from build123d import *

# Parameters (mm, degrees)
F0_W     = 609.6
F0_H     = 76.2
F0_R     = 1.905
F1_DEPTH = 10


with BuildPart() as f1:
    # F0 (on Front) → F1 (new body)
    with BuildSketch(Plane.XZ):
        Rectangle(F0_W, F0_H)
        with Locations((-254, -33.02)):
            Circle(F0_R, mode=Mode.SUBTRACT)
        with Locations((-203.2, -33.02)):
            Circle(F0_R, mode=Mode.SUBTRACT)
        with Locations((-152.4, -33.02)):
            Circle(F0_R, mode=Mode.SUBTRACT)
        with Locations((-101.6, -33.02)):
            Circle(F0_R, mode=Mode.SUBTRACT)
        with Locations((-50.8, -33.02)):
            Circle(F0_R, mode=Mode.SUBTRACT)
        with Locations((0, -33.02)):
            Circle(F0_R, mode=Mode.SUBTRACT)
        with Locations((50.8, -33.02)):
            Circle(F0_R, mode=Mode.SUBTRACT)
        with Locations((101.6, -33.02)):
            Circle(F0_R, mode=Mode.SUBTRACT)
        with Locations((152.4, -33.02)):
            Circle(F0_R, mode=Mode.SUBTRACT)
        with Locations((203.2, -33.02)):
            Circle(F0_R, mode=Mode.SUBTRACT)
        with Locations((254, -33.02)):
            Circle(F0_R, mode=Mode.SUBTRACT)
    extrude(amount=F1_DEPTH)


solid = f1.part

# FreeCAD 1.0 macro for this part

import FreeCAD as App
import Part
import Sketcher

V = App.Vector
Q = App.Units.Quantity

doc = App.newDocument("Part")
body = doc.addObject("PartDesign::Body", "Body")

# Sketch on XZ plane
sketch1 = doc.addObject("Sketcher::SketchObject", "Sketch")
body.addObject(sketch1)
sketch1.AttachmentSupport = (doc.XZ_Plane, [""])
sketch1.MapMode = "FlatFace"
sketch1.addGeometry([
    Part.LineSegment(V(-304.8, 38.1, 0), V(-304.8, -38.1, 0)),  # 0
    Part.LineSegment(V(-304.8, -38.1, 0), V(304.8, -38.1, 0)),  # 1
    Part.LineSegment(V(304.8, -38.1, 0), V(304.8, 38.1, 0)),  # 2
    Part.LineSegment(V(304.8, 38.1, 0), V(-304.8, 38.1, 0)),  # 3
    Part.Circle(V(-254, -33, 0), V(0, 0, 1), 1.9),  # 4
    Part.Circle(V(-203.2, -33, 0), V(0, 0, 1), 1.9),  # 5
    Part.Circle(V(-152.4, -33, 0), V(0, 0, 1), 1.9),  # 6
    Part.Circle(V(-101.6, -33, 0), V(0, 0, 1), 1.9),  # 7
    Part.Circle(V(-50.8, -33, 0), V(0, 0, 1), 1.9),  # 8
    Part.Circle(V(0, -33, 0), V(0, 0, 1), 1.9),  # 9
    Part.Circle(V(50.8, -33, 0), V(0, 0, 1), 1.9),  # 10
    Part.Circle(V(101.6, -33, 0), V(0, 0, 1), 1.9),  # 11
    Part.Circle(V(152.4, -33, 0), V(0, 0, 1), 1.9),  # 12
    Part.Circle(V(203.2, -33, 0), V(0, 0, 1), 1.9),  # 13
    Part.Circle(V(254, -33, 0), V(0, 0, 1), 1.9),  # 14
], False)
sketch1.addConstraint([
    Sketcher.Constraint("Coincident", 0, 2, 1, 1),
    Sketcher.Constraint("Coincident", 1, 2, 2, 1),
    Sketcher.Constraint("Coincident", 2, 2, 3, 1),
    Sketcher.Constraint("Coincident", 3, 2, 0, 1),
    Sketcher.Constraint("Vertical", 0),
    Sketcher.Constraint("Horizontal", 1),
    Sketcher.Constraint("Vertical", 2),
    Sketcher.Constraint("Horizontal", 3),
    Sketcher.Constraint("Equal", 4, 5),
    Sketcher.Constraint("Equal", 5, 6),
    Sketcher.Constraint("Equal", 6, 7),
    Sketcher.Constraint("Equal", 7, 8),
    Sketcher.Constraint("Equal", 8, 9),
    Sketcher.Constraint("Equal", 9, 10),
    Sketcher.Constraint("Equal", 10, 11),
    Sketcher.Constraint("Equal", 11, 12),
    Sketcher.Constraint("Equal", 12, 13),
    Sketcher.Constraint("Equal", 13, 14),
    Sketcher.Constraint("Symmetric", 0, 2, 2, 2, -1, 1),
    Sketcher.Constraint("Symmetric", 8, 3, 10, 3, -2),
    Sketcher.Constraint("Symmetric", 7, 3, 11, 3, -2),
    Sketcher.Constraint("Symmetric", 6, 3, 12, 3, -2),
    Sketcher.Constraint("Symmetric", 5, 3, 13, 3, -2),
    Sketcher.Constraint("Symmetric", 4, 3, 14, 3, -2),
    Sketcher.Constraint("PointOnObject", 9, 3, -2),
    Sketcher.Constraint("Horizontal", 4, 3, 5, 3),
    Sketcher.Constraint("Horizontal", 5, 3, 6, 3),
    Sketcher.Constraint("Horizontal", 6, 3, 7, 3),
    Sketcher.Constraint("Horizontal", 7, 3, 8, 3),
    Sketcher.Constraint("Horizontal", 8, 3, 9, 3),
    Sketcher.Constraint("Diameter", 4, Q("0.15 in")),
    Sketcher.Constraint("DistanceX", 1, 1, 1, 2, Q("24 in")),
    Sketcher.Constraint("DistanceY", 0, 2, 0, 1, Q("3 in")),
    Sketcher.Constraint("DistanceX", 4, 3, -1, 1, Q("10 in")),
    Sketcher.Constraint("DistanceX", 5, 3, -1, 1, Q("8 in")),
    Sketcher.Constraint("DistanceX", 6, 3, -1, 1, Q("6 in")),
    Sketcher.Constraint("DistanceX", 7, 3, -1, 1, Q("4 in")),
    Sketcher.Constraint("DistanceX", 8, 3, -1, 1, Q("2 in")),
    Sketcher.Constraint("DistanceY", 4, 3, -1, 1, Q("1.3 in")),
])
pad1 = doc.addObject("PartDesign::Pad", "Pad")
body.addObject(pad1)
pad1.Profile = sketch1
pad1.Length = 10

doc.recompute()
